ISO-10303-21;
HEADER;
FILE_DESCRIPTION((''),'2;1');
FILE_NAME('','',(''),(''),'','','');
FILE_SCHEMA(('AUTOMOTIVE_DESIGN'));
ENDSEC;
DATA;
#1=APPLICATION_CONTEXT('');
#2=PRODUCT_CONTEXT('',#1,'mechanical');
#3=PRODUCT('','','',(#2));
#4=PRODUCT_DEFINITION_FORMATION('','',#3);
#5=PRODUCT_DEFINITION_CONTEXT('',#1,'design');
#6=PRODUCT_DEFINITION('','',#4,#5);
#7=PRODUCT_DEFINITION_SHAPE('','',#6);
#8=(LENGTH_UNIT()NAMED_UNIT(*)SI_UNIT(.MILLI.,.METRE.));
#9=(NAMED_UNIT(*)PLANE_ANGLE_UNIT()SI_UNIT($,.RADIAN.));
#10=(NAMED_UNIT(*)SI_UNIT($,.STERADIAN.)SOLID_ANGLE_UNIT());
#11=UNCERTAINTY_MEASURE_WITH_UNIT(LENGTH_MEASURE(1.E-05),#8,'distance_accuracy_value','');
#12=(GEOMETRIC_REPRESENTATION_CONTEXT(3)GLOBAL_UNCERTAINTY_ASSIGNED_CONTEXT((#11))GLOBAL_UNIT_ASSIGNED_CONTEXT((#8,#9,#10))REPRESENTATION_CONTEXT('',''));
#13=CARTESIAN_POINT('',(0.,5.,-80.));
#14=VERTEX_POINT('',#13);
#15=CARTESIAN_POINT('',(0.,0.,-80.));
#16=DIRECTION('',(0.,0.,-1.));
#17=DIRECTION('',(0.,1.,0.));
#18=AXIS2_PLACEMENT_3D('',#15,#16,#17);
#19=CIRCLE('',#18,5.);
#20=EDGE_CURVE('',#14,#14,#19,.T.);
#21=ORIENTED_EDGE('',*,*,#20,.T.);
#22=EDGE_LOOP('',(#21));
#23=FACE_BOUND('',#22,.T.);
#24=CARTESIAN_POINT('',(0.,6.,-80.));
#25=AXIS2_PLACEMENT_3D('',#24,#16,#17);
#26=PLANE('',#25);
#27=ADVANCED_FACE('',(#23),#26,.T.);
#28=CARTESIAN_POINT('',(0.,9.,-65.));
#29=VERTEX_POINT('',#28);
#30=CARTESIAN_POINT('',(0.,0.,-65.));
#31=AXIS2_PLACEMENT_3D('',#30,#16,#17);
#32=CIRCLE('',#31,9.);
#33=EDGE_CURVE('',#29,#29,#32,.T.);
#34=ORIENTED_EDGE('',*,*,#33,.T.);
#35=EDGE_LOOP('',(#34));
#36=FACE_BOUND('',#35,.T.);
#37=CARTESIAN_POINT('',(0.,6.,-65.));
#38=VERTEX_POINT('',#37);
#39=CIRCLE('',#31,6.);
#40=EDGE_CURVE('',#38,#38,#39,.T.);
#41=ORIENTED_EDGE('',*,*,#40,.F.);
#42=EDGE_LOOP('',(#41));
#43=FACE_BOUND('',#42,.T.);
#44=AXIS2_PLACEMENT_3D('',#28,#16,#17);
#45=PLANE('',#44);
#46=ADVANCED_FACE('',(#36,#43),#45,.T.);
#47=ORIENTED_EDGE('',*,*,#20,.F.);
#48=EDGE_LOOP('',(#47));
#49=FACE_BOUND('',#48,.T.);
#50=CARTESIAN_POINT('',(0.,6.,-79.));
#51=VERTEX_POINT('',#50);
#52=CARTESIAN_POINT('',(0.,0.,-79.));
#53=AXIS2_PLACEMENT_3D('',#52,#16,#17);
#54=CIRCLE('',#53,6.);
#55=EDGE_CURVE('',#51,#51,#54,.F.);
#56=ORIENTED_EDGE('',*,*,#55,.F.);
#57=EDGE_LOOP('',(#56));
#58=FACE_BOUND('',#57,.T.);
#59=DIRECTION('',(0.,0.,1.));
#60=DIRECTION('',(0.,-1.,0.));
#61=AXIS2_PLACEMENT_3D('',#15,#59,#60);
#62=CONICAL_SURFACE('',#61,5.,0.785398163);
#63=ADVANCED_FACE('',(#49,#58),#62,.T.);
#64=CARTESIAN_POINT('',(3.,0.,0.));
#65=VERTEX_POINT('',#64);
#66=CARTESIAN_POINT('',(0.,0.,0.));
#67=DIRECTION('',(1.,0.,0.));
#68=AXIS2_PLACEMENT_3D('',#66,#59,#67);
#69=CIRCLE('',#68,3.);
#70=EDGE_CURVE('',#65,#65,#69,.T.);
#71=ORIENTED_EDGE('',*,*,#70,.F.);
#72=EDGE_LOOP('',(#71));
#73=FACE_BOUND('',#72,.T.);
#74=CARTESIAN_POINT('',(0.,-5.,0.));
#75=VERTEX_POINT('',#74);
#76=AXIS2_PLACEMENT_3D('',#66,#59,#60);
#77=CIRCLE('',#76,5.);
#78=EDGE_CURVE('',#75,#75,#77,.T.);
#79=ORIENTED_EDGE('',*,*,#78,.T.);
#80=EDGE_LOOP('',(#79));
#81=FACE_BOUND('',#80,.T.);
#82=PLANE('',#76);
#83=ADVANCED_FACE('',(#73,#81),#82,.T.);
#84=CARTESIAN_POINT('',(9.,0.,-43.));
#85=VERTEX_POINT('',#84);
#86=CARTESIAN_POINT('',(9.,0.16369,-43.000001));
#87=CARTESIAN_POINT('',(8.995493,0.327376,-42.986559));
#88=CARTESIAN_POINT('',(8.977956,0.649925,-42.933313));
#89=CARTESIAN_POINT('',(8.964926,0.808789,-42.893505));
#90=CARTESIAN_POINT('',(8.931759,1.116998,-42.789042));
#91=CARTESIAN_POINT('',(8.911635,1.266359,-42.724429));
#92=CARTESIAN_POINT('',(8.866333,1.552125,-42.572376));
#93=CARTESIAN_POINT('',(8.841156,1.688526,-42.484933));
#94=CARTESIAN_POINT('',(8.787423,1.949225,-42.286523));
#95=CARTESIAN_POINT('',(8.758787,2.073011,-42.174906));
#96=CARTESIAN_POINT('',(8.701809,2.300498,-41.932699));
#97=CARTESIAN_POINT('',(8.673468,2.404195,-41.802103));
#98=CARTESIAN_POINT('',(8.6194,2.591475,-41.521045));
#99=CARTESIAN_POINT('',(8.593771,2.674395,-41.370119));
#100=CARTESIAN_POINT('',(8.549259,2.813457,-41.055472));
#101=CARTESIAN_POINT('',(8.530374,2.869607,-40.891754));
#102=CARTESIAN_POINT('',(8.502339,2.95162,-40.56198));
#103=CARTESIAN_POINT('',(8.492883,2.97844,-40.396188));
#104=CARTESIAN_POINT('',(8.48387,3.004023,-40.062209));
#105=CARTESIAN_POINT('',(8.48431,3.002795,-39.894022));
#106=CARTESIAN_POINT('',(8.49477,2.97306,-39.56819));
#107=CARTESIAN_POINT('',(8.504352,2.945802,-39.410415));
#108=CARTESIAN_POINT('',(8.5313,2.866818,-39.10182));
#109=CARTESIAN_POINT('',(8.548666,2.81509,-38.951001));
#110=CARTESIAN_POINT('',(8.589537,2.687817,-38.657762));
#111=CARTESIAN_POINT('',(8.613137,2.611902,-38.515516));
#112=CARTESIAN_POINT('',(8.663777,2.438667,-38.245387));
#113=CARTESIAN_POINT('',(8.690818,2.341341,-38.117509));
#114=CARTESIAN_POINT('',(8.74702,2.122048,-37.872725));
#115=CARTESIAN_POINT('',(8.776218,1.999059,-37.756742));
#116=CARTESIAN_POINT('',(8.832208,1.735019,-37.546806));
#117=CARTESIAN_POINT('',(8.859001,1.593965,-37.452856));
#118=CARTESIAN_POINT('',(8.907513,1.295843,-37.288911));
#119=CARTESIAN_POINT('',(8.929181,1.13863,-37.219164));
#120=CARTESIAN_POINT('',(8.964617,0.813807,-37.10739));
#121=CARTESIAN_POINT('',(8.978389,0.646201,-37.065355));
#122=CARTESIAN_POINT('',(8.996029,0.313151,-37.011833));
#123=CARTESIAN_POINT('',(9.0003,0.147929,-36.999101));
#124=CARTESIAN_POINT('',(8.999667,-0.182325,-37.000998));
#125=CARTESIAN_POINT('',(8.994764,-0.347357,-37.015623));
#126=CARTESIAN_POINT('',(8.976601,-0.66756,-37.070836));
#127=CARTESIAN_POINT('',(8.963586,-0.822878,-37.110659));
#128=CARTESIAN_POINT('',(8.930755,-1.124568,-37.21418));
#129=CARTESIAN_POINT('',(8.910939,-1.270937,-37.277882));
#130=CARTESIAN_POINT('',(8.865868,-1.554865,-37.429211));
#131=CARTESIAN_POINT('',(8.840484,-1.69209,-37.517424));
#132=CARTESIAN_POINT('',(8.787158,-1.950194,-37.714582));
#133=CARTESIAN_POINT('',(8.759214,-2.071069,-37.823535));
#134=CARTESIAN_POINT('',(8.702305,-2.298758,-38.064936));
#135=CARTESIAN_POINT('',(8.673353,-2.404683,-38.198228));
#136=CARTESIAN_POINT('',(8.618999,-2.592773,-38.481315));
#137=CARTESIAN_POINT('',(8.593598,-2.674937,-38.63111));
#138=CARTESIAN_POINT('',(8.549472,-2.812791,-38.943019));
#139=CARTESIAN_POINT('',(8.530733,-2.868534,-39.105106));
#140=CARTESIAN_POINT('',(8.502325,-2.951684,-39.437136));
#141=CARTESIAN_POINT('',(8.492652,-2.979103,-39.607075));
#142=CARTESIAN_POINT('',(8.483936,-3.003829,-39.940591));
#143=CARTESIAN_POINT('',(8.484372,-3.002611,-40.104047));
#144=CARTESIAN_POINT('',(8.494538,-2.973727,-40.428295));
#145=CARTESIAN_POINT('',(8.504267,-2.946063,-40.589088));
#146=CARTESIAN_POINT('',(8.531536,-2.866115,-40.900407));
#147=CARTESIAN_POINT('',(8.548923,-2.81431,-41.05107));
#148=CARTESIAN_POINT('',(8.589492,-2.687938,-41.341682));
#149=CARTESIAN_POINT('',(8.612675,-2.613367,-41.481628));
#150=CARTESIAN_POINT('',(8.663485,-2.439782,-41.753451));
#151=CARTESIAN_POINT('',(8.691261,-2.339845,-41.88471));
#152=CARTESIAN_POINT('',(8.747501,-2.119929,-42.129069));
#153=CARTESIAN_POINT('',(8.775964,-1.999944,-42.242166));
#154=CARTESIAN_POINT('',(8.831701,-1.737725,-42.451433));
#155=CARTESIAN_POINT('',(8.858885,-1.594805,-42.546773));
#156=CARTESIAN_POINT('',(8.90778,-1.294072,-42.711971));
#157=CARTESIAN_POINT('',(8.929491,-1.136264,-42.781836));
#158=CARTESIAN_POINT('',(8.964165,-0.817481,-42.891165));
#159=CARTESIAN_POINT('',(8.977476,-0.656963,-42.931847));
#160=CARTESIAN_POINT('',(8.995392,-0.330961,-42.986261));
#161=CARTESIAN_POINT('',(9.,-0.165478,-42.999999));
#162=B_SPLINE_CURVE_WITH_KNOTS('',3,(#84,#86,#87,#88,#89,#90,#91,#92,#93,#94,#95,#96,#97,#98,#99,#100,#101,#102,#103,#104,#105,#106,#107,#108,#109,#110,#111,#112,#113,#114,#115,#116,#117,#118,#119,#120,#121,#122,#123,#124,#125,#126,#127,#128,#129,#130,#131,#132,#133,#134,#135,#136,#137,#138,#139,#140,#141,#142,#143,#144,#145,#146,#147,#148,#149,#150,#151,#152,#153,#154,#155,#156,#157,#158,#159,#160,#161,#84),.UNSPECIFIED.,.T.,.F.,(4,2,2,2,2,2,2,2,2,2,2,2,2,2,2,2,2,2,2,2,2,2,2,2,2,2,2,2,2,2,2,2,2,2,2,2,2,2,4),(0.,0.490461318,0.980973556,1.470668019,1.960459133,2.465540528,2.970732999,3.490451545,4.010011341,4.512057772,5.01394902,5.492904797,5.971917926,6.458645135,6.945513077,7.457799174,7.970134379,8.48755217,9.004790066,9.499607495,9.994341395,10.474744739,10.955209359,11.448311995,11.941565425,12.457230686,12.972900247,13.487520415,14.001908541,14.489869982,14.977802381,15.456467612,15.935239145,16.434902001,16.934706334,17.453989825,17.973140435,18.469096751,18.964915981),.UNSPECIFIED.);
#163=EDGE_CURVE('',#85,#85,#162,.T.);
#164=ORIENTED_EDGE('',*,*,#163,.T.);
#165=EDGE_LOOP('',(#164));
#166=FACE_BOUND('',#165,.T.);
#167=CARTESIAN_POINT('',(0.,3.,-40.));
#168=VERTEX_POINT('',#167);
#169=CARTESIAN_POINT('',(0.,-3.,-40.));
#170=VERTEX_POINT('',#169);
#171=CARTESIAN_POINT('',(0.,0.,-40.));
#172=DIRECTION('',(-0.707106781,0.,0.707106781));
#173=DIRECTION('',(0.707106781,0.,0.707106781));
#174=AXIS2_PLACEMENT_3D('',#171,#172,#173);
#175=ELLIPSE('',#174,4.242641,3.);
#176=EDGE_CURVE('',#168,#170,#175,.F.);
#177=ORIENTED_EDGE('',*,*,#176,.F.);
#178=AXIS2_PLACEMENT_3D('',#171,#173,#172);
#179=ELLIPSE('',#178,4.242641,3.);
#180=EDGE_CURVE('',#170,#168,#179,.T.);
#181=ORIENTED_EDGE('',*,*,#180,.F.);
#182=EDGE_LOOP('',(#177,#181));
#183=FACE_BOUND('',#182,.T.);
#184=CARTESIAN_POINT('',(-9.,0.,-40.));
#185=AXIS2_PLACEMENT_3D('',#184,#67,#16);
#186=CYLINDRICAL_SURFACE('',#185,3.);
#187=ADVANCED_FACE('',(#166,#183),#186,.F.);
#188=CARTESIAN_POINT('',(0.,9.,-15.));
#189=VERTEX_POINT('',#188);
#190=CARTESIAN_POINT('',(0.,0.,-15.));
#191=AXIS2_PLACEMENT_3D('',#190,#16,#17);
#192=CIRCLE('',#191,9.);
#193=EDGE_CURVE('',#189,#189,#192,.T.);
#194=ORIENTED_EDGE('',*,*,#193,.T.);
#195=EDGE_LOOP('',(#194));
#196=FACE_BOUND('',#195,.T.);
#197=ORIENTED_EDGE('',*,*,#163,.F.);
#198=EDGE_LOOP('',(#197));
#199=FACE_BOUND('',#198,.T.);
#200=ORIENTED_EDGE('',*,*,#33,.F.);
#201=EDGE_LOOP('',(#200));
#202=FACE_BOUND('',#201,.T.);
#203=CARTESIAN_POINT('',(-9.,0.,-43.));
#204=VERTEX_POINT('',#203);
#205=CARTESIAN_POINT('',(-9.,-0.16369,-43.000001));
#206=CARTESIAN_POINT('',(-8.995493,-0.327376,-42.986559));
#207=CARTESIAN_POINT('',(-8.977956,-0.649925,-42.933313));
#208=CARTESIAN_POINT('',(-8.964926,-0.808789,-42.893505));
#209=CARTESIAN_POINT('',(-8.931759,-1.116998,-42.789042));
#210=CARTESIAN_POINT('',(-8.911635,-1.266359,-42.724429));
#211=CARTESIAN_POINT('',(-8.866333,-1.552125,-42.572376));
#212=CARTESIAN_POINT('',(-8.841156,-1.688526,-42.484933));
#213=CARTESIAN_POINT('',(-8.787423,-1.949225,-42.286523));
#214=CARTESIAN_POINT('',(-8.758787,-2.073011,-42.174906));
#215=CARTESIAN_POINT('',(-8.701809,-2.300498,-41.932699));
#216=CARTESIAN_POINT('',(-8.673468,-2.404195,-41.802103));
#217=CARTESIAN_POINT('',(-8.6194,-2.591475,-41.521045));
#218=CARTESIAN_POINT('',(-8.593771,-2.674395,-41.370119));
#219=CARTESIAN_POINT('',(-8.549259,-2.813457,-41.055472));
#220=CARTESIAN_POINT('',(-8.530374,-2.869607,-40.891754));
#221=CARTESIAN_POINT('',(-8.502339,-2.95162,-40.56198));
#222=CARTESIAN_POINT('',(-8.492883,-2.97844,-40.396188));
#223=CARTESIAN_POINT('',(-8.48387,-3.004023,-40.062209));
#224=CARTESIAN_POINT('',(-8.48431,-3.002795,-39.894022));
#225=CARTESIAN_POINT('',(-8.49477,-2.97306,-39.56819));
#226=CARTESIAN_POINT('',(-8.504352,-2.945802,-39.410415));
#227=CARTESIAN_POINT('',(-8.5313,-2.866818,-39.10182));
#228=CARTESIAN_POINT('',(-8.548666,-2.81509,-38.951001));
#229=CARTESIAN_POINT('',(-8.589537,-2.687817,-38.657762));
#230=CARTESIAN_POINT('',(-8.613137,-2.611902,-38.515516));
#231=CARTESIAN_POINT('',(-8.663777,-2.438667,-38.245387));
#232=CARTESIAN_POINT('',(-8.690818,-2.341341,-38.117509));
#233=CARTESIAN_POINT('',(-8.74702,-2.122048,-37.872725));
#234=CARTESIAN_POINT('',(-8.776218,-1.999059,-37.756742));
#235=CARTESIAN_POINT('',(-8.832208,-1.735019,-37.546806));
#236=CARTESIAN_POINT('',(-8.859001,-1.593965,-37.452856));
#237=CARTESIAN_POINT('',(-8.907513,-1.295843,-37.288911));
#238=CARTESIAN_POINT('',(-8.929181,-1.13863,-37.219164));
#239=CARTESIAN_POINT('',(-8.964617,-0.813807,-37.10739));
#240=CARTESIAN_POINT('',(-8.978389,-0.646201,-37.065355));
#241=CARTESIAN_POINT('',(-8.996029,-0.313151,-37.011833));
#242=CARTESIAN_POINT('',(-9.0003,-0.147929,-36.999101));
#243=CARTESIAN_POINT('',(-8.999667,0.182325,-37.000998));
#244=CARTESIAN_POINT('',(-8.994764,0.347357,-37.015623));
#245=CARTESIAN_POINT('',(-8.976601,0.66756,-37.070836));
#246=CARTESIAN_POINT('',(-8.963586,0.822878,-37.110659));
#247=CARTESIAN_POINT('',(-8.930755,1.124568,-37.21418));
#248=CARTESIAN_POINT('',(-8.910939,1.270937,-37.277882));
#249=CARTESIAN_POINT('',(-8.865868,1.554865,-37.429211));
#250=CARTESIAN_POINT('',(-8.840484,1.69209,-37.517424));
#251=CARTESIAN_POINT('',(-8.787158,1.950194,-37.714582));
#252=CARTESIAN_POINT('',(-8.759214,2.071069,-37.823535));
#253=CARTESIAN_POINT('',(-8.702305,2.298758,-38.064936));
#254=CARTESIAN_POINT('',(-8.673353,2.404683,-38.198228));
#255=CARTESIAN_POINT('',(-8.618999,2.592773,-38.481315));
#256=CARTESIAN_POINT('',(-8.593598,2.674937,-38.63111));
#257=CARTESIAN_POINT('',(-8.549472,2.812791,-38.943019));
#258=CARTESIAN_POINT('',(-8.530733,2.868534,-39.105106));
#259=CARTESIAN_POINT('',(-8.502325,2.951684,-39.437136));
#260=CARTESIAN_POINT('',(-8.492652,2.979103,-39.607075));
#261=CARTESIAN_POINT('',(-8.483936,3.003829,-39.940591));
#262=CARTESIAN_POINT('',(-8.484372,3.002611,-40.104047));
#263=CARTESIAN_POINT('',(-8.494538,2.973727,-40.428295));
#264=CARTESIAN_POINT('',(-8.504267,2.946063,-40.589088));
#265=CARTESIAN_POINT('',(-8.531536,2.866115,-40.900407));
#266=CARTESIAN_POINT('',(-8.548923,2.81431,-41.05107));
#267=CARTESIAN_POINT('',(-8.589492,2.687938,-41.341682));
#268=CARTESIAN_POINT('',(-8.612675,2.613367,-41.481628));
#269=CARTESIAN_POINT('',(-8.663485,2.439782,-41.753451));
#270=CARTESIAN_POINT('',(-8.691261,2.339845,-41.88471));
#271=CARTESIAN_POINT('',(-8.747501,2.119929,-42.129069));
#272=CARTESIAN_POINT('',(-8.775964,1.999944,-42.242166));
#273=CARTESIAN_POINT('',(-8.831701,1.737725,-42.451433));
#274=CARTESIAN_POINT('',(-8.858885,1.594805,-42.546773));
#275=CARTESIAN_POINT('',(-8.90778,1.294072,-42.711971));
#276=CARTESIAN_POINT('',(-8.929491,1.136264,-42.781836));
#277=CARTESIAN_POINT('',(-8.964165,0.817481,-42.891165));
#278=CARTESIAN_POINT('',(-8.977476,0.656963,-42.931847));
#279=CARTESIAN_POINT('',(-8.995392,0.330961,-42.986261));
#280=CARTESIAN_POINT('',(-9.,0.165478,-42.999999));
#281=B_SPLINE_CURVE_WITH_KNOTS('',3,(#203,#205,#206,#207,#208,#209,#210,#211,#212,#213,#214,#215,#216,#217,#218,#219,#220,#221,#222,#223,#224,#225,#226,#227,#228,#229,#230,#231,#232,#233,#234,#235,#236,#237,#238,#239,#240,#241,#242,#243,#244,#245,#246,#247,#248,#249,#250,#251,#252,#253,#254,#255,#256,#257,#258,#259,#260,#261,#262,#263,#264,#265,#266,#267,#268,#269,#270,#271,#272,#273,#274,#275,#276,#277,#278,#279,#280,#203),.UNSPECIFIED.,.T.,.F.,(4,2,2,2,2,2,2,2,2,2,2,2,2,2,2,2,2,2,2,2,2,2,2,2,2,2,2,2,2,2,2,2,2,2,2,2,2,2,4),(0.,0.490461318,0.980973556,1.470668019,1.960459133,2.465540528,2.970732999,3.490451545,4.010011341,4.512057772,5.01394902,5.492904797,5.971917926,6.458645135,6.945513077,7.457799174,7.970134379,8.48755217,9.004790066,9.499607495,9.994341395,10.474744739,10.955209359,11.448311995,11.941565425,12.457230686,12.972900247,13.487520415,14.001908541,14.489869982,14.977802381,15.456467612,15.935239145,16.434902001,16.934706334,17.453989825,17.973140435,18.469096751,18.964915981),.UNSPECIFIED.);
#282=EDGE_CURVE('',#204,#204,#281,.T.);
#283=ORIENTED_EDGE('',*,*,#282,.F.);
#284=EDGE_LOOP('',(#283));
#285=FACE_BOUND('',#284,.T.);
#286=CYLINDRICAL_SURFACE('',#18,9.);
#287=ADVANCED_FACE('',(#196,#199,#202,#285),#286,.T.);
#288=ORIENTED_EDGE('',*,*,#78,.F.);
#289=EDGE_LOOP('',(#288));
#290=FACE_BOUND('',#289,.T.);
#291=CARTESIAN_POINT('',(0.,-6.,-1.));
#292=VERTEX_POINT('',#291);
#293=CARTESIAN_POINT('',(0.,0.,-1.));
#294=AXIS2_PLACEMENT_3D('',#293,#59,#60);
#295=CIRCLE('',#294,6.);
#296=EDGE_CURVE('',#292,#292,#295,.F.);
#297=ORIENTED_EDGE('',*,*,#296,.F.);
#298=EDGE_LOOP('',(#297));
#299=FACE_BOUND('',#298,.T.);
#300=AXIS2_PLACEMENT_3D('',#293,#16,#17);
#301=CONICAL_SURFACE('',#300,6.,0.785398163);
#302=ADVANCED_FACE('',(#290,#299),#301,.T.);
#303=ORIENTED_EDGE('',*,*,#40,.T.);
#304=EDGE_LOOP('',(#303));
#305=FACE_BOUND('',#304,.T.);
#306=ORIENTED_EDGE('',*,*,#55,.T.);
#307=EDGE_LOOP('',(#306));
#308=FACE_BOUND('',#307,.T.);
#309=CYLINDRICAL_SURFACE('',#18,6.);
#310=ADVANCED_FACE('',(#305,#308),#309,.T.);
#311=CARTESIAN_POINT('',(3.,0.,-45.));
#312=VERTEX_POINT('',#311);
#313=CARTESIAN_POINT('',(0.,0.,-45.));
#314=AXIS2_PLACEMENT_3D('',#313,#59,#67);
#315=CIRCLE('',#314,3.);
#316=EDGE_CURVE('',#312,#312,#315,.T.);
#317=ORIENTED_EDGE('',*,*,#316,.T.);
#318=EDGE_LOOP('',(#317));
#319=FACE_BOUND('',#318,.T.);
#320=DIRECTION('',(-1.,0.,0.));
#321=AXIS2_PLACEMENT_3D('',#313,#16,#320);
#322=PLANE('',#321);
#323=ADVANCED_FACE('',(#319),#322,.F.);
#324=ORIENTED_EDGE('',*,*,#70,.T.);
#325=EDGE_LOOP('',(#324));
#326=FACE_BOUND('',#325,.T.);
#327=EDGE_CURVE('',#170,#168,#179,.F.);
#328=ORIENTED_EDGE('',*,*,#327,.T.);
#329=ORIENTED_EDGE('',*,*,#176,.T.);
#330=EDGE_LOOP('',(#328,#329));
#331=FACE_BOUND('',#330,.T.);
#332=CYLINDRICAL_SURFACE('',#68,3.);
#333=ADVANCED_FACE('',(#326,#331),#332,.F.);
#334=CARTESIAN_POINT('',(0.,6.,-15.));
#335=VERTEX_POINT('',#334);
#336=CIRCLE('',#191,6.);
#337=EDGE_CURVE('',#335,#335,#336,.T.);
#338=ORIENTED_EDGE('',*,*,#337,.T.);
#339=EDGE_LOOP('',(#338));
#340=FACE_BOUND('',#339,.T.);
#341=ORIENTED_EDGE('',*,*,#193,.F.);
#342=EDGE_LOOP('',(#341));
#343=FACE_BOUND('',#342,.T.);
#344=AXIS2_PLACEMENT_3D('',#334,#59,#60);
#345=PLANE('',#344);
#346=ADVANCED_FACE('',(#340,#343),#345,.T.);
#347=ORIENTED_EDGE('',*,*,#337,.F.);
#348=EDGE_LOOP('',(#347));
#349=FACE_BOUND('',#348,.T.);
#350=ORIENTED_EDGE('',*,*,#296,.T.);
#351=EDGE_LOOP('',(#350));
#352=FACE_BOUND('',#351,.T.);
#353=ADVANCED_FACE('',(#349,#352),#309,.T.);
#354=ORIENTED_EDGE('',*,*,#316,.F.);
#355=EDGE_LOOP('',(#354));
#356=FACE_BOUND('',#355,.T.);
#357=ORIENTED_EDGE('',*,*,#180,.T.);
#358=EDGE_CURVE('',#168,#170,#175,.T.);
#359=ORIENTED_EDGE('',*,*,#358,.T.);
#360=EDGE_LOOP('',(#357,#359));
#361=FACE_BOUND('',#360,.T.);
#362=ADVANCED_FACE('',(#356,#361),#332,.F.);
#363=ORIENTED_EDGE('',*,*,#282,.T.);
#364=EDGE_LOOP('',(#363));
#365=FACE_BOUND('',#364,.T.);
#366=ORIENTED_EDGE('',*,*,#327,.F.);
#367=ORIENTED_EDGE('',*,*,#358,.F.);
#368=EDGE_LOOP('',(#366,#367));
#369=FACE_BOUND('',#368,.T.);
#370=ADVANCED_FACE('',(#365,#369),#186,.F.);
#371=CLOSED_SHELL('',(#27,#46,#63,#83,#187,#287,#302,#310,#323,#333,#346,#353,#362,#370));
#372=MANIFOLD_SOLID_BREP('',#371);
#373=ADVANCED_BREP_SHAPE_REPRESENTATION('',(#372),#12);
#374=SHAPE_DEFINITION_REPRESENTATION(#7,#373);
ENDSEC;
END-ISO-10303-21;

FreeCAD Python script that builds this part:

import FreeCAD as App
import Part
import Sketcher
from FreeCAD import Vector


def edges_at(feature, points):
    """Names of the edges that pass closest to the given points."""
    edges = feature.Shape.Edges
    near = lambda p: min(range(len(edges)), key=lambda i: edges[i].distToShape(Part.Vertex(*p))[0])
    return sorted({f"Edge{near(p) + 1}" for p in points})


def add_polygon(sketch, points):
    """Adds a closed chain of lines whose ends are joined by coincident constraints."""
    first, n = sketch.GeometryCount, len(points)
    for a, b in zip(points, points[1:] + points[:1]):
        sketch.addGeometry(Part.LineSegment(App.Vector(*a, 0), App.Vector(*b, 0)), False)
    for i in range(n):
        sketch.addConstraint(Sketcher.Constraint("Coincident", first + i, 2, first + (i + 1) % n, 1))

doc = App.newDocument("Part")
body = doc.addObject("PartDesign::Body", "Body")

sketch1 = doc.addObject("Sketcher::SketchObject", "Sketch")
body.addObject(sketch1)
sketch1.AttachmentSupport = (doc.YZ_Plane, [""])
sketch1.MapMode = "FlatFace"
add_polygon(sketch1, [(6, 0), (0, 0), (0, -80), (6, -80), (6, -65), (9, -65), (9, -15), (6, -15)])
sketch1.addConstraint([
    Sketcher.Constraint("Horizontal", 0),
    Sketcher.Constraint("Vertical", 1),
    Sketcher.Constraint("Horizontal", 2),
    Sketcher.Constraint("Vertical", 3),
    Sketcher.Constraint("Horizontal", 4),
    Sketcher.Constraint("Vertical", 5),
    Sketcher.Constraint("Horizontal", 6),
    Sketcher.Constraint("Vertical", 7),
    Sketcher.Constraint("Coincident", 0, 2, -1, 1),
    Sketcher.Constraint("Vertical", 3, 2, 6, 2),
    Sketcher.Constraint("Equal", 3, 7),
    Sketcher.Constraint("DistanceX", 0, 2, 0, 1, 6.0),
    Sketcher.Constraint("DistanceX", 4, 1, 4, 2, 3.0),
    Sketcher.Constraint("DistanceY", 1, 2, 1, 1, 80.0),
    Sketcher.Constraint("DistanceY", 3, 1, 3, 2, 15.0),
])
revolution = doc.addObject("PartDesign::Revolution", "Revolution")
body.addObject(revolution)
revolution.Profile = sketch1
revolution.ReferenceAxis = (sketch1, ["V_Axis"])
revolution.Angle = 360

sketch2 = doc.addObject("Sketcher::SketchObject", "Sketch001")
body.addObject(sketch2)
sketch2.AttachmentSupport = (doc.XY_Plane, [""])
sketch2.MapMode = "FlatFace"
sketch2.addGeometry(Part.Circle(Vector(0, 0, 0), Vector(0, 0, 1), 3), False)
sketch2.addConstraint([
    Sketcher.Constraint("Coincident", 0, 3, -1, 1),
    Sketcher.Constraint("Diameter", 0, 6.0),
])
doc.recompute()
hole = doc.addObject("PartDesign::Hole", "Hole")
body.addObject(hole)
hole.Profile = sketch2
hole.ThreadType = "None"
hole.Diameter = 6
hole.DepthType = "Dimension"
hole.Depth = 45
hole.DrillPoint = "Flat"

sketch3 = doc.addObject("Sketcher::SketchObject", "Sketch002")
body.addObject(sketch3)
sketch3.AttachmentSupport = (doc.YZ_Plane, [""])
sketch3.MapMode = "FlatFace"
sketch3.addGeometry(Part.Circle(Vector(0, -40, 0), Vector(0, 0, 1), 3), False)
sketch3.addConstraint([
    Sketcher.Constraint("PointOnObject", 0, 3, -2),
    Sketcher.Constraint("Diameter", 0, 6.0),
    Sketcher.Constraint("DistanceY", 0, 3, -1, 1, 40.0),
])
pocket1 = doc.addObject("PartDesign::Pocket", "Pocket")
body.addObject(pocket1)
pocket1.Profile = sketch3
pocket1.Type = "ThroughAll"
pocket1.Midplane = True
doc.recompute()

chamfer = doc.addObject("PartDesign::Chamfer", "Chamfer")
body.addObject(chamfer)
chamfer.Base = (pocket1, edges_at(pocket1, [(0, -6, -80), (0, -6, 0)]))
chamfer.Size = 1

doc.recompute()
